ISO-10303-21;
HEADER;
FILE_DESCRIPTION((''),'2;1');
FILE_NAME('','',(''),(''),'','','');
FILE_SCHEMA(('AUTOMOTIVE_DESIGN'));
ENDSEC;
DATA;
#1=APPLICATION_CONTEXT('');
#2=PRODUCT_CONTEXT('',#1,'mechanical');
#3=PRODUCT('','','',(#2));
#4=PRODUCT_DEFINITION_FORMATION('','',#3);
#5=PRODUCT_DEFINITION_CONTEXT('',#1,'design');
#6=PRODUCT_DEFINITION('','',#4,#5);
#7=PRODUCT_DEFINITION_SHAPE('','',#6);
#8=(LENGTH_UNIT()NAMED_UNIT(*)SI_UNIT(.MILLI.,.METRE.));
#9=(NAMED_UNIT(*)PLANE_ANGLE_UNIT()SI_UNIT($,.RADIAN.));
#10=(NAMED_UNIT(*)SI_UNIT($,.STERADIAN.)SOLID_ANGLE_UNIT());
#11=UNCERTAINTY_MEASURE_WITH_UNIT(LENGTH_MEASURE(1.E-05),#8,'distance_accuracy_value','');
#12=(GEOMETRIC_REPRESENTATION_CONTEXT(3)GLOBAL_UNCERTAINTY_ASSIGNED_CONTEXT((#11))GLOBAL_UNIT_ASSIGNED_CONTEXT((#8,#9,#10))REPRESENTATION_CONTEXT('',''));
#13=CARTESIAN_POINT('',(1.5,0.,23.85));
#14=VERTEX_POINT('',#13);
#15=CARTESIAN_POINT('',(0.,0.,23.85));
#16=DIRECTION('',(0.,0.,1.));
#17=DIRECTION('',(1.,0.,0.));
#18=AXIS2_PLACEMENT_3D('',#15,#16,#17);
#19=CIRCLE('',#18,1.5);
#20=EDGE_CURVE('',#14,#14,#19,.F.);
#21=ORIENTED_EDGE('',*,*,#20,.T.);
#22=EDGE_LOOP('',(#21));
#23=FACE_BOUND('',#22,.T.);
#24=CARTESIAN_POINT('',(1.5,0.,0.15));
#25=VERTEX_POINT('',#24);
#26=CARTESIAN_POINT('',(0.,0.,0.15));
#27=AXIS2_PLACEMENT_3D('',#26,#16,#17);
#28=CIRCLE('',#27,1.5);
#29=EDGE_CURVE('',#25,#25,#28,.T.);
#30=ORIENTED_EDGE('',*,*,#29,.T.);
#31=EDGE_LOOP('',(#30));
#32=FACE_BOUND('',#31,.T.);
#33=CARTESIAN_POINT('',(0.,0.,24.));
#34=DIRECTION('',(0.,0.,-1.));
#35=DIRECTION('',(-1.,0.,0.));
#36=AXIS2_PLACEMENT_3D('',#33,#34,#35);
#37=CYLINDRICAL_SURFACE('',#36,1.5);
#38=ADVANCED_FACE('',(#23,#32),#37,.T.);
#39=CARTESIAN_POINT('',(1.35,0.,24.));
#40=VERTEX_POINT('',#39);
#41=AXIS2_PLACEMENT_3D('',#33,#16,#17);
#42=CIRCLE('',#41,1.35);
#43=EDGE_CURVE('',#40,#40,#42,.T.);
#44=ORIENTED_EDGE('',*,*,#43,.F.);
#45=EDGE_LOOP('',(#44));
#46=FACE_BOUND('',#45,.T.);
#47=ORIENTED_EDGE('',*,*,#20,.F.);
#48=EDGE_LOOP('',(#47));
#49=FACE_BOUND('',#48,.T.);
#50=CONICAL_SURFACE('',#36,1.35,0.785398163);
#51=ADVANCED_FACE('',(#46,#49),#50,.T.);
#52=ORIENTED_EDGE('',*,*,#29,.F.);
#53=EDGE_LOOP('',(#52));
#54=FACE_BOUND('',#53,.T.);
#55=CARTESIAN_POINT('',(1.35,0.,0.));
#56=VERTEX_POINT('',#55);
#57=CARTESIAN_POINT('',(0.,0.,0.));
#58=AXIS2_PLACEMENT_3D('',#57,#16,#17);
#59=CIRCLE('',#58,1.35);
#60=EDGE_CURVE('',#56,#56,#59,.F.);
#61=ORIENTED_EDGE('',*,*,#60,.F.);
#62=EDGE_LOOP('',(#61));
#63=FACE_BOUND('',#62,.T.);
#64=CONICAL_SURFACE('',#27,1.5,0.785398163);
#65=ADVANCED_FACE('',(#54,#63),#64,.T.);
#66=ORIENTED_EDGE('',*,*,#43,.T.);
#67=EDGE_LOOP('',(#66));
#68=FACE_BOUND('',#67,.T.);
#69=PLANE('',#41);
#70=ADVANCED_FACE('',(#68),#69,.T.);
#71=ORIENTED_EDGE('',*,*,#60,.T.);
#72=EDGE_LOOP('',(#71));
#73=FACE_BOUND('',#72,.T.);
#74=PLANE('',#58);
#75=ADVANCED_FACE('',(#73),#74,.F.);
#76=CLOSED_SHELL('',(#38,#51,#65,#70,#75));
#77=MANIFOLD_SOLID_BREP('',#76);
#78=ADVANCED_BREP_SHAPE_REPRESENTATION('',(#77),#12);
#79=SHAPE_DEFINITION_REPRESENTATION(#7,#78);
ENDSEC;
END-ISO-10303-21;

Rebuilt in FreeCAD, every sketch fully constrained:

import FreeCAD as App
import Part
import Sketcher
from FreeCAD import Vector


def edges_at(feature, points):
    """Names of the edges that pass closest to the given points."""
    edges = feature.Shape.Edges
    near = lambda p: min(range(len(edges)), key=lambda i: edges[i].distToShape(Part.Vertex(*p))[0])
    return sorted({f"Edge{near(p) + 1}" for p in points})

doc = App.newDocument("Part")
body = doc.addObject("PartDesign::Body", "Body")

sketch1 = body.newObject("Sketcher::SketchObject", "Sketch")
sketch1.AttachmentSupport = (doc.getObject("XY_Plane"), [""])
sketch1.MapMode = "FlatFace"
sketch1.addGeometry(Part.Circle(Vector(0, 0, 0), Vector(0, 0, 1), 1.5), False)
sketch1.addConstraint(Sketcher.Constraint("Coincident", 0, 3, -1, 1))
sketch1.addConstraint(Sketcher.Constraint("Diameter", 0, 3.0))
pad1 = body.newObject("PartDesign::Pad", "Pad")
pad1.Profile = sketch1
pad1.Length = 24
doc.recompute()

chamfer = body.newObject("PartDesign::Chamfer", "Chamfer")
chamfer.Base = (pad1, edges_at(pad1, [(-1.5, 0, 0), (-1.5, 0, 24)]))
chamfer.Size = 0.15

doc.recompute()
